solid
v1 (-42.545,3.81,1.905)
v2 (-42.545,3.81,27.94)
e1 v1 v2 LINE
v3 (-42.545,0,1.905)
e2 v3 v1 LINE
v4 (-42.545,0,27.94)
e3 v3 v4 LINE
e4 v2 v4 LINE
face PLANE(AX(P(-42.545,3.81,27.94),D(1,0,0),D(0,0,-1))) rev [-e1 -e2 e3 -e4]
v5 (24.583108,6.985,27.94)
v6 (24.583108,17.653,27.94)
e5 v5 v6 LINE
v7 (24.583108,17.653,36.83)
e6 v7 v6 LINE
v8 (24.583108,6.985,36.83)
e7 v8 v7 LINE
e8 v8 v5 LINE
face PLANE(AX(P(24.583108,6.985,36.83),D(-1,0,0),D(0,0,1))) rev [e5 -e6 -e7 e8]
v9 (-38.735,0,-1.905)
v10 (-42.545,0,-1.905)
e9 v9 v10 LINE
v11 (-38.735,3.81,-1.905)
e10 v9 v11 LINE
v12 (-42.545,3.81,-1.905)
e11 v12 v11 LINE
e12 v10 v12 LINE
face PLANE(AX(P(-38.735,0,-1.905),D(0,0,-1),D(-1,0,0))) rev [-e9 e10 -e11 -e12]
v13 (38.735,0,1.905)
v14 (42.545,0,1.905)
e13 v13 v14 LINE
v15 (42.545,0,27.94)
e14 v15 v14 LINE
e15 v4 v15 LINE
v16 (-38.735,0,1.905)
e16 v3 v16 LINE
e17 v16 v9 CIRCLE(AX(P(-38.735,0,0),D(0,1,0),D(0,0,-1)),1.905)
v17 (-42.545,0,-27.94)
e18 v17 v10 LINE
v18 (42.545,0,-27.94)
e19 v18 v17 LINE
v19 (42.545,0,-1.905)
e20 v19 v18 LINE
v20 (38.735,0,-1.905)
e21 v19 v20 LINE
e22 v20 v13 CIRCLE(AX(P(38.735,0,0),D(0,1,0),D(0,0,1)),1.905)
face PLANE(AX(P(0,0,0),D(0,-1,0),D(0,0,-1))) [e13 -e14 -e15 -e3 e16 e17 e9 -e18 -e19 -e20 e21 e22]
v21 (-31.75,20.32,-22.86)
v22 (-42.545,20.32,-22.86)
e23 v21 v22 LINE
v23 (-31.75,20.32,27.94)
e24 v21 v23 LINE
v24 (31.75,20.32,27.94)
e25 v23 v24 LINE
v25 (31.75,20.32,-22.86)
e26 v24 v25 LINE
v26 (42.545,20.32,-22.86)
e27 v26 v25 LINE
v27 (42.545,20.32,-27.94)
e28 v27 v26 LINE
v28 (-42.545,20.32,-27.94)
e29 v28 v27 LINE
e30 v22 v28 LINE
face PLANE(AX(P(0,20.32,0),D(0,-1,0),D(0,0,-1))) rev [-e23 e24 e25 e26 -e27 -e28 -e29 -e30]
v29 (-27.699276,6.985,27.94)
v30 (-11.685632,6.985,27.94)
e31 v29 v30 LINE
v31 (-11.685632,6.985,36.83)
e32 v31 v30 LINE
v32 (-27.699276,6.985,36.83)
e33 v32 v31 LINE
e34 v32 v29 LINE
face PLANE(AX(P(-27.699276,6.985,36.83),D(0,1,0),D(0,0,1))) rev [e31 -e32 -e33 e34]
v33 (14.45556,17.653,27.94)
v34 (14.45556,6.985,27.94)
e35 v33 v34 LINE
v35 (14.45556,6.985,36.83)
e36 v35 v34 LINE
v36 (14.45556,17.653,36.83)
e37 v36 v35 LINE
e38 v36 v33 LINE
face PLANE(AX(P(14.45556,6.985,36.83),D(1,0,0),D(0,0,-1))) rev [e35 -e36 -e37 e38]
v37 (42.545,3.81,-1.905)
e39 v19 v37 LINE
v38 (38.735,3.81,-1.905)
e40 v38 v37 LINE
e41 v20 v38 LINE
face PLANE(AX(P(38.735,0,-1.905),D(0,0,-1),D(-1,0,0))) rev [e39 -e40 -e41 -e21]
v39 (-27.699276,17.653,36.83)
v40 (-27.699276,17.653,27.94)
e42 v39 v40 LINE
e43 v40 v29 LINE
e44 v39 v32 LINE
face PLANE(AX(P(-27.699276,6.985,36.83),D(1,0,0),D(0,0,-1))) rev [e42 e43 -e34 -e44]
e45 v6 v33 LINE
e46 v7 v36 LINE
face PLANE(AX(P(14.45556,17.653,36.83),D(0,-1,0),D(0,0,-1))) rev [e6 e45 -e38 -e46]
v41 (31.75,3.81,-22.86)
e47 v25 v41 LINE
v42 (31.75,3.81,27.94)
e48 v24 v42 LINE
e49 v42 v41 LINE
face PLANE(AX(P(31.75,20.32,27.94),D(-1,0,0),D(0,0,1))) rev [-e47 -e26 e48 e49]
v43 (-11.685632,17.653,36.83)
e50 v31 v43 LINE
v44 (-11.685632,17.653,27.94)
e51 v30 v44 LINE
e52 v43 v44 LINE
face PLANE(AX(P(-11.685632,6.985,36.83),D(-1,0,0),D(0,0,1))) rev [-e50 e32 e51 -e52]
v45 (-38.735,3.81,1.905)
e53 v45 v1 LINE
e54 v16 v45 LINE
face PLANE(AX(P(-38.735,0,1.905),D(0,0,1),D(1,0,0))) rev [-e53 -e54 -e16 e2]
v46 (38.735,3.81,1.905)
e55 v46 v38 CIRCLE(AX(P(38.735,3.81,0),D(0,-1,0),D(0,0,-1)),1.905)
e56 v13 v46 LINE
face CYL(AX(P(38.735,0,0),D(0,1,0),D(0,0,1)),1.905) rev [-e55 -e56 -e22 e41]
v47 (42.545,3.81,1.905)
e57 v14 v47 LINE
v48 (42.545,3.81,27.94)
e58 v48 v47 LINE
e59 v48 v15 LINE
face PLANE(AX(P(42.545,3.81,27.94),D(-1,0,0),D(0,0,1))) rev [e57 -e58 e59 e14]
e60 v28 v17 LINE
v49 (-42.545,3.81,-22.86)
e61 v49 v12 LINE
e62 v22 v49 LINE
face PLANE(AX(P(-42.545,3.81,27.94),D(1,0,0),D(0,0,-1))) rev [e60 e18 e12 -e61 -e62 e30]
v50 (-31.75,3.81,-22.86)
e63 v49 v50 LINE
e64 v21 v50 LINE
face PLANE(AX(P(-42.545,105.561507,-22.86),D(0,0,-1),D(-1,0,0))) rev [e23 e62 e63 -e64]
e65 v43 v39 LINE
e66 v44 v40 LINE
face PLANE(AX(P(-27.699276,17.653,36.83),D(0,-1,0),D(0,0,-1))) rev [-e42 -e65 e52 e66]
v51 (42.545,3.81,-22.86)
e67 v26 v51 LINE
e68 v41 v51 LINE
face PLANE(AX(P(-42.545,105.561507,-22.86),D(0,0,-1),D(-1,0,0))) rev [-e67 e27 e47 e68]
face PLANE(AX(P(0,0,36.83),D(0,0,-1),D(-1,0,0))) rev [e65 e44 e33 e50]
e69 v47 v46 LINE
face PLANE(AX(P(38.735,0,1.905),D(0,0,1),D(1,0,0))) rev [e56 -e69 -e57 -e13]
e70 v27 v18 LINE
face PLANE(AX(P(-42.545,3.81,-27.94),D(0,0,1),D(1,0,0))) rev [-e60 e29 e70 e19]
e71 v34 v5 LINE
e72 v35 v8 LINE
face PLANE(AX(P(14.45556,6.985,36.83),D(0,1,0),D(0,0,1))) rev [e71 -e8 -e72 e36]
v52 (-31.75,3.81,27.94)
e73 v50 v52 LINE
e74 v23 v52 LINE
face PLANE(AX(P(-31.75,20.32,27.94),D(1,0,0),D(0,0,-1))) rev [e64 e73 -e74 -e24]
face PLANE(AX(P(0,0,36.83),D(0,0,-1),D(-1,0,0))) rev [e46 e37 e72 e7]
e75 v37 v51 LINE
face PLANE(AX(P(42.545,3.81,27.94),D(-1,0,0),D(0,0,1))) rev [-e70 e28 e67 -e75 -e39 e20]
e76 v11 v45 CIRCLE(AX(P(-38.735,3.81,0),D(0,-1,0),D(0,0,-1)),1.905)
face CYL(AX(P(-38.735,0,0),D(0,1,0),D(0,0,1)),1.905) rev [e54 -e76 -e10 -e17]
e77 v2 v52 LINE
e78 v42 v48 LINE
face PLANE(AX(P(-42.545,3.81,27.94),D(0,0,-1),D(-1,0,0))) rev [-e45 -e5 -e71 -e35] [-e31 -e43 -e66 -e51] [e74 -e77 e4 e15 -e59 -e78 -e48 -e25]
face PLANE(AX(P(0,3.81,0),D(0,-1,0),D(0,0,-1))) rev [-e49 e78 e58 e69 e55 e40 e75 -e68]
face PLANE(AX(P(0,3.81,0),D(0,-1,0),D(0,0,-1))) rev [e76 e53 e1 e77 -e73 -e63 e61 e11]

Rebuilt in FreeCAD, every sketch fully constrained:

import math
import FreeCAD as App
import Part
import Sketcher

V = App.Vector
Q = App.Units.Quantity


def add_polygon(sketch, points):
    """Adds a closed chain of lines whose ends are joined by coincident constraints."""
    first, n = sketch.GeometryCount, len(points)
    for a, b in zip(points, points[1:] + points[:1]):
        sketch.addGeometry(Part.LineSegment(App.Vector(*a, 0), App.Vector(*b, 0)), False)
    for i in range(n):
        sketch.addConstraint(Sketcher.Constraint("Coincident", first + i, 2, first + (i + 1) % n, 1))

doc = App.newDocument("Part")
body = doc.addObject("PartDesign::Body", "Body")

# Sketch on XZ plane
sketch1 = doc.addObject("Sketcher::SketchObject", "Sketch")
body.addObject(sketch1)
sketch1.AttachmentSupport = (doc.XZ_Plane, [""])
sketch1.MapMode = "FlatFace"
add_polygon(sketch1, [(-43, -28), (-43, 28), (43, 28), (43, -28)])  # lines 0-3
sketch1.addConstraint(Sketcher.Constraint("Vertical", 0))
sketch1.addConstraint(Sketcher.Constraint("Horizontal", 1))
sketch1.addConstraint(Sketcher.Constraint("Vertical", 2))
sketch1.addConstraint(Sketcher.Constraint("Horizontal", 3))
sketch1.addConstraint(Sketcher.Constraint("Symmetric", 0, 2, 2, 2, -1, 1))
sketch1.addConstraint(Sketcher.Constraint("DistanceY", 0, 1, 0, 2, Q("2.2 in")))
sketch1.addConstraint(Sketcher.Constraint("DistanceX", 1, 1, 1, 2, Q("3.35 in")))
pad1 = doc.addObject("PartDesign::Pad", "Pad")
body.addObject(pad1)
pad1.Profile = sketch1
pad1.Length = Q("0.15 in")
pad1.Reversed = True

# Sketch on XZ plane
sketch2 = doc.addObject("Sketcher::SketchObject", "Sketch001")
body.addObject(sketch2)
sketch2.AttachmentSupport = (doc.XZ_Plane, [""])
sketch2.MapMode = "FlatFace"
sketch2.AttachmentOffset = App.Placement(V(0, 0, -0.15 * 25.4), App.Rotation())
add_polygon(sketch2, [(-32, -23), (-32, 28), (32, 28), (32, -23)])  # lines 0-3
sketch2.addConstraint(Sketcher.Constraint("Vertical", 0))
sketch2.addConstraint(Sketcher.Constraint("Horizontal", 1))
sketch2.addConstraint(Sketcher.Constraint("Vertical", 2))
sketch2.addConstraint(Sketcher.Constraint("Horizontal", 3))
sketch2.addConstraint(Sketcher.Constraint("DistanceY", 0, 1, 0, 2, Q("2 in")))
sketch2.addConstraint(Sketcher.Constraint("DistanceX", 1, 1, 1, 2, Q("2.5 in")))
sketch2.addConstraint(Sketcher.Constraint("DistanceY", -1, 1, 0, 2, Q("1.1 in")))
sketch2.addConstraint(Sketcher.Constraint("DistanceX", 0, 2, -1, 1, Q("1.25 in")))
pad2 = doc.addObject("PartDesign::Pad", "Pad001")
body.addObject(pad2)
pad2.Profile = sketch2
pad2.Length = Q("0.65 in")
pad2.Reversed = True

# Sketch on XZ plane
sketch3 = doc.addObject("Sketcher::SketchObject", "Sketch002")
body.addObject(sketch3)
sketch3.AttachmentSupport = (doc.XZ_Plane, [""])
sketch3.MapMode = "FlatFace"
sketch3.AttachmentOffset = App.Placement(V(0, 0, -0.15 * 25.4), App.Rotation())
add_polygon(sketch3, [(-43, -28), (-43, -23), (43, -23), (43, -28)])  # lines 0-3
sketch3.addConstraint(Sketcher.Constraint("Vertical", 0))
sketch3.addConstraint(Sketcher.Constraint("Horizontal", 1))
sketch3.addConstraint(Sketcher.Constraint("Vertical", 2))
sketch3.addConstraint(Sketcher.Constraint("Horizontal", 3))
sketch3.addConstraint(Sketcher.Constraint("DistanceY", 0, 1, 0, 2, Q("0.2 in")))
sketch3.addConstraint(Sketcher.Constraint("DistanceX", 1, 1, 1, 2, Q("3.35 in")))
sketch3.addConstraint(Sketcher.Constraint("DistanceY", 0, 2, -1, 1, Q("0.9 in")))
sketch3.addConstraint(Sketcher.Constraint("DistanceX", 0, 2, -1, 1, Q("1.675 in")))
pad3 = doc.addObject("PartDesign::Pad", "Pad002")
body.addObject(pad3)
pad3.Profile = sketch3
pad3.Length = Q("0.65 in")
pad3.Reversed = True

# Sketch on XZ plane
sketch4 = doc.addObject("Sketcher::SketchObject", "Sketch003")
body.addObject(sketch4)
sketch4.AttachmentSupport = (doc.XZ_Plane, [""])
sketch4.MapMode = "FlatFace"
sketch4.AttachmentOffset = App.Placement(V(0, 0, -0.15 * 25.4), App.Rotation())
sketch4.addGeometry(Part.LineSegment(V(42.5, -1.9, 0), V(38.7, -1.9, 0)), False)
sketch4.addGeometry(Part.ArcOfCircle(Part.Circle(V(38.7, 0, 0), V(0, 0, 1), 1.9), math.radians(90), math.radians(270)), False)
sketch4.addGeometry(Part.LineSegment(V(38.7, 1.9, 0), V(42.5, 1.9, 0)), False)
sketch4.addGeometry(Part.LineSegment(V(42.5, 1.9, 0), V(42.5, -1.9, 0)), False)
sketch4.addGeometry(Part.LineSegment(V(-42.5, -1.9, 0), V(-42.5, 1.9, 0)), False)
sketch4.addGeometry(Part.LineSegment(V(-42.5, 1.9, 0), V(-38.7, 1.9, 0)), False)
sketch4.addGeometry(Part.ArcOfCircle(Part.Circle(V(-38.7, 0, 0), V(0, 0, 1), 1.9), math.radians(-90), math.radians(90)), False)
sketch4.addGeometry(Part.LineSegment(V(-38.7, -1.9, 0), V(-42.5, -1.9, 0)), False)
sketch4.addConstraint(Sketcher.Constraint("Tangent", 0, 2, 1, 2))
sketch4.addConstraint(Sketcher.Constraint("Tangent", 1, 1, 2, 1))
sketch4.addConstraint(Sketcher.Constraint("Coincident", 2, 2, 3, 1))
sketch4.addConstraint(Sketcher.Constraint("Coincident", 3, 2, 0, 1))
sketch4.addConstraint(Sketcher.Constraint("Coincident", 4, 2, 5, 1))
sketch4.addConstraint(Sketcher.Constraint("Tangent", 5, 2, 6, 2))
sketch4.addConstraint(Sketcher.Constraint("Tangent", 6, 1, 7, 1))
sketch4.addConstraint(Sketcher.Constraint("Coincident", 7, 2, 4, 1))
sketch4.addConstraint(Sketcher.Constraint("Horizontal", 0))
sketch4.addConstraint(Sketcher.Constraint("Horizontal", 2))
sketch4.addConstraint(Sketcher.Constraint("Vertical", 3))
sketch4.addConstraint(Sketcher.Constraint("Vertical", 4))
sketch4.addConstraint(Sketcher.Constraint("Horizontal", 5))
sketch4.addConstraint(Sketcher.Constraint("Horizontal", 7))
sketch4.addConstraint(Sketcher.Constraint("Equal", 1, 6))
sketch4.addConstraint(Sketcher.Constraint("Symmetric", 1, 3, 6, 3, -1, 1))
sketch4.addConstraint(Sketcher.Constraint("Symmetric", 2, 2, 4, 2, -2))
sketch4.addConstraint(Sketcher.Constraint("Equal", 7, 3))
sketch4.addConstraint(Sketcher.Constraint("Radius", 1, Q("0.075 in")))
sketch4.addConstraint(Sketcher.Constraint("DistanceX", 6, 3, 2, 2, Q("3.2 in")))
pocket1 = doc.addObject("PartDesign::Pocket", "Pocket")
body.addObject(pocket1)
pocket1.Profile = sketch4
pocket1.Type = "ThroughAll"
pocket1.Midplane = True

# Sketch on XY plane
sketch5 = doc.addObject("Sketcher::SketchObject", "Sketch004")
body.addObject(sketch5)
sketch5.AttachmentSupport = (doc.XY_Plane, [""])
sketch5.MapMode = "FlatFace"
sketch5.AttachmentOffset = App.Placement(V(0, 0, 1.1 * 25.4), App.Rotation())
add_polygon(sketch5, [(-28, 18), (-28, 7), (-12, 7), (-12, 18)])  # lines 0-3
add_polygon(sketch5, [(14, 18), (14, 7), (25, 7), (25, 18)])  # lines 4-7
sketch5.addConstraint(Sketcher.Constraint("Vertical", 0))
sketch5.addConstraint(Sketcher.Constraint("Horizontal", 1))
sketch5.addConstraint(Sketcher.Constraint("Vertical", 2))
sketch5.addConstraint(Sketcher.Constraint("Horizontal", 3))
sketch5.addConstraint(Sketcher.Constraint("Vertical", 4))
sketch5.addConstraint(Sketcher.Constraint("Horizontal", 5))
sketch5.addConstraint(Sketcher.Constraint("Vertical", 6))
sketch5.addConstraint(Sketcher.Constraint("Horizontal", 7))
sketch5.addConstraint(Sketcher.Constraint("Horizontal", 1, 2, 4, 2))
sketch5.addConstraint(Sketcher.Constraint("Horizontal", 3, 2, 6, 2))
sketch5.addConstraint(Sketcher.Constraint("DistanceY", 0, 2, 0, 1, Q("0.42 in")))
sketch5.addConstraint(Sketcher.Constraint("DistanceY", -1, 1, 0, 2, Q("0.275 in")))
sketch5.addConstraint(Sketcher.Constraint("DistanceX", 1, 1, 1, 2, 16.013644))
sketch5.addConstraint(Sketcher.Constraint("DistanceX", 5, 1, 5, 2, 10.127548))
sketch5.addConstraint(Sketcher.Constraint("DistanceX", -1, 1, 4, 2, 14.45556))
sketch5.addConstraint(Sketcher.Constraint("DistanceX", 1, 2, 5, 2, 36.26874))
pad4 = doc.addObject("PartDesign::Pad", "Pad003")
body.addObject(pad4)
pad4.Profile = sketch5
pad4.Length = Q("0.35 in")

doc.recompute()
